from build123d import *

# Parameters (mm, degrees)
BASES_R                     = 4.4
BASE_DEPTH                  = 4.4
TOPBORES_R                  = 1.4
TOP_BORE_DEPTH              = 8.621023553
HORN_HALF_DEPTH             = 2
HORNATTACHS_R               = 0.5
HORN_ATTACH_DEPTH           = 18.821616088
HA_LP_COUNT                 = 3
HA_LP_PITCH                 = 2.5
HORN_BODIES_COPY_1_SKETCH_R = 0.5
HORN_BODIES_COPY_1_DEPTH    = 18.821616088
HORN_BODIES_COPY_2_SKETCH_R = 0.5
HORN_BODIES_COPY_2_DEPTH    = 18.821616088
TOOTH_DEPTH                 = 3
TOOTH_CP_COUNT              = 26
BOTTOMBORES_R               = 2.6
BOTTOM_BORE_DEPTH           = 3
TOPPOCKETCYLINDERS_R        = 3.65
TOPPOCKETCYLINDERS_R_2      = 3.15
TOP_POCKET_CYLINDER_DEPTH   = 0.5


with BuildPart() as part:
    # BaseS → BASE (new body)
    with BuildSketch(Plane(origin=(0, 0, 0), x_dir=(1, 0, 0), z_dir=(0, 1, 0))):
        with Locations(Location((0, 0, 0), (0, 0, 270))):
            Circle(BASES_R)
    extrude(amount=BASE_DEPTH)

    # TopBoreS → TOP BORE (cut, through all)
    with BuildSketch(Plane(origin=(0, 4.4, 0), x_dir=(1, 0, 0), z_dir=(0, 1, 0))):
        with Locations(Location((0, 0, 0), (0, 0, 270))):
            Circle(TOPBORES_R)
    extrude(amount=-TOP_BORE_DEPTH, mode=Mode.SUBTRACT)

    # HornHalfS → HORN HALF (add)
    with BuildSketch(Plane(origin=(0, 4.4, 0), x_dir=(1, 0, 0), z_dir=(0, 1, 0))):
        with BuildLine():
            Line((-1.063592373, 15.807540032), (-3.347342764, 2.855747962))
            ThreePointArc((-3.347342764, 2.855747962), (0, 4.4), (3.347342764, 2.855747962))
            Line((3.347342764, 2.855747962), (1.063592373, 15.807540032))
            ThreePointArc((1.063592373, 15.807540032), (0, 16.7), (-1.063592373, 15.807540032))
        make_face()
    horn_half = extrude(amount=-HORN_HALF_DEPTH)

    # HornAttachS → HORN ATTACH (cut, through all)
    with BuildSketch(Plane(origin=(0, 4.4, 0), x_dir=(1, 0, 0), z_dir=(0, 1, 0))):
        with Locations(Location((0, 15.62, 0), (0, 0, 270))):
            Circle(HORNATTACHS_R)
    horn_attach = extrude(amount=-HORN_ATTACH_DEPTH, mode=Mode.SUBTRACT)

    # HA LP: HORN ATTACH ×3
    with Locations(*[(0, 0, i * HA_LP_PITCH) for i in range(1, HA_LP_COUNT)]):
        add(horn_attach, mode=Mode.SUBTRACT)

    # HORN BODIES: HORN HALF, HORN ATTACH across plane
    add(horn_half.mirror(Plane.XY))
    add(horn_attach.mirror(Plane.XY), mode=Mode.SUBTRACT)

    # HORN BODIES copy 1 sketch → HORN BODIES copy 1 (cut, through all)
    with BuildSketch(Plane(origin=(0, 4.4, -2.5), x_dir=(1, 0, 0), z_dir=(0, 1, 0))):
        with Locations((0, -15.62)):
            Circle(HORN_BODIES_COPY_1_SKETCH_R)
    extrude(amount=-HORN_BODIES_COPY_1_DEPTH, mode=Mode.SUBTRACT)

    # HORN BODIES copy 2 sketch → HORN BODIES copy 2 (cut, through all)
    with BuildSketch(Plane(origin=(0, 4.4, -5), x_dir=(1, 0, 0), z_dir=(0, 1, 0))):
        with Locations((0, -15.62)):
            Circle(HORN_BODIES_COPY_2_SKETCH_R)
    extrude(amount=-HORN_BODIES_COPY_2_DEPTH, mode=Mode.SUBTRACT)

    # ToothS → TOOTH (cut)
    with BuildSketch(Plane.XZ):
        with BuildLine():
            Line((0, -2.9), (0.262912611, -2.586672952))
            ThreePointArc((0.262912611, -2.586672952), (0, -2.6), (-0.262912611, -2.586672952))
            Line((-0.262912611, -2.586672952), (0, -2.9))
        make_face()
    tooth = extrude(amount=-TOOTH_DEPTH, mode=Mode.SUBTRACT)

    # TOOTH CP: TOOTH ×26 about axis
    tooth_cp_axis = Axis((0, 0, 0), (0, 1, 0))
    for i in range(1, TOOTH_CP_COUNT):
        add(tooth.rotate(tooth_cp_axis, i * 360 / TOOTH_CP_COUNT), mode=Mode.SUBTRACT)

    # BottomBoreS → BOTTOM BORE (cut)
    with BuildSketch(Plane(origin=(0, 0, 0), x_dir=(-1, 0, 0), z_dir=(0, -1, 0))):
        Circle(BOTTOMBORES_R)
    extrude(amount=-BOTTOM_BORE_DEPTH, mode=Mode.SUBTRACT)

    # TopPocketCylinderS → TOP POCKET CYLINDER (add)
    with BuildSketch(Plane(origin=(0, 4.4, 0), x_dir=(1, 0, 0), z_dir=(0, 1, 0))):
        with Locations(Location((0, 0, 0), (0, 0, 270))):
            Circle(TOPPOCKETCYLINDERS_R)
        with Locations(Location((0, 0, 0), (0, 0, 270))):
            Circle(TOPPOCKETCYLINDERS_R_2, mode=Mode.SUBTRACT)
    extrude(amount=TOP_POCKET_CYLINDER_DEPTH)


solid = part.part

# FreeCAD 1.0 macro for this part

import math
import FreeCAD as App
import Part
import Sketcher

V = App.Vector
Q = App.Units.Quantity

doc = App.newDocument("Part")
body = doc.addObject("PartDesign::Body", "Body")

# Sketch on XZ plane
sketch1 = doc.addObject("Sketcher::SketchObject", "Sketch")
body.addObject(sketch1)
sketch1.AttachmentSupport = (doc.XZ_Plane, [""])
sketch1.MapMode = "FlatFace"
sketch1.addGeometry(Part.Circle(V(0, 0, 0), V(0, 0, 1), 4.4), False)
sketch1.addConstraint(Sketcher.Constraint("Coincident", 0, 3, -1, 1))
sketch1.addConstraint(Sketcher.Constraint("Diameter", 0, Q("8.8 mm")))
pad1 = doc.addObject("PartDesign::Pad", "Pad")
body.addObject(pad1)
pad1.Profile = sketch1
pad1.Length = 4.4
pad1.Reversed = True

# Sketch on XZ plane
sketch2 = doc.addObject("Sketcher::SketchObject", "Sketch001")
body.addObject(sketch2)
sketch2.AttachmentSupport = (doc.XZ_Plane, [""])
sketch2.MapMode = "FlatFace"
sketch2.AttachmentOffset = App.Placement(V(0, 0, -4.4), App.Rotation())
sketch2.addGeometry(Part.Circle(V(0, 0, 0), V(0, 0, 1), 1.4), False)
sketch2.addConstraint(Sketcher.Constraint("Coincident", 0, 3, -1, 1))
sketch2.addConstraint(Sketcher.Constraint("Diameter", 0, Q("2.8 mm")))
pocket1 = doc.addObject("PartDesign::Pocket", "Pocket")
body.addObject(pocket1)
pocket1.Profile = sketch2
pocket1.Type = "ThroughAll"
pocket1.Reversed = True

# Sketch on XZ plane
sketch3 = doc.addObject("Sketcher::SketchObject", "Sketch002")
body.addObject(sketch3)
sketch3.AttachmentSupport = (doc.XZ_Plane, [""])
sketch3.MapMode = "FlatFace"
sketch3.AttachmentOffset = App.Placement(V(0, 0, -4.4), App.Rotation())
sketch3.addGeometry(Part.LineSegment(V(-1.063592, -15.80754, 0), V(-3.347343, -2.855748, 0)), False)
sketch3.addGeometry(Part.ArcOfCircle(Part.Circle(V(0, 0, 0), V(0, 0, 1), 4.4), math.radians(-139.531219), math.radians(-40.468781)), False)
sketch3.addGeometry(Part.LineSegment(V(3.347343, -2.855748, 0), V(1.063592, -15.80754, 0)), False)
sketch3.addGeometry(Part.ArcOfCircle(Part.Circle(V(0, -15.62, 0), V(0, 0, 1), 1.08), math.radians(-170), math.radians(-10)), False)
sketch3.addConstraint(Sketcher.Constraint("Coincident", 0, 2, 1, 1))
sketch3.addConstraint(Sketcher.Constraint("Coincident", 1, 2, 2, 1))
sketch3.addConstraint(Sketcher.Constraint("Tangent", 2, 2, 3, 2))
sketch3.addConstraint(Sketcher.Constraint("Tangent", 3, 1, 0, 1))
sketch3.addConstraint(Sketcher.Constraint("Coincident", 1, 3, -1, 1))
sketch3.addConstraint(Sketcher.Constraint("Symmetric", 2, 2, 3, 1, -2))
sketch3.addConstraint(Sketcher.Constraint("Radius", 1, Q("4.4 mm")))
sketch3.addConstraint(Sketcher.Constraint("Angle", 0, Q("100 deg")))
sketch3.addConstraint(Sketcher.Constraint("Radius", 3, Q("1.08 mm")))
sketch3.addConstraint(Sketcher.Constraint("DistanceY", 3, 3, -1, 1, Q("15.62 mm")))
pad2 = doc.addObject("PartDesign::Pad", "Pad001")
body.addObject(pad2)
pad2.Profile = sketch3
pad2.Length = 2

# Sketch on XZ plane
sketch4 = doc.addObject("Sketcher::SketchObject", "Sketch003")
body.addObject(sketch4)
sketch4.AttachmentSupport = (doc.XZ_Plane, [""])
sketch4.MapMode = "FlatFace"
sketch4.AttachmentOffset = App.Placement(V(0, 0, -4.4), App.Rotation())
sketch4.addGeometry(Part.Circle(V(0, -15.62, 0), V(0, 0, 1), 0.5), False)
sketch4.addConstraint(Sketcher.Constraint("PointOnObject", 0, 3, -2))
sketch4.addConstraint(Sketcher.Constraint("Diameter", 0, Q("1 mm")))
sketch4.addConstraint(Sketcher.Constraint("DistanceY", 0, 3, -1, 1, Q("15.62 mm")))
pocket2 = doc.addObject("PartDesign::Pocket", "Pocket001")
body.addObject(pocket2)
pocket2.Profile = sketch4
pocket2.Type = "ThroughAll"
pocket2.Reversed = True
doc.recompute()

linearpattern = doc.addObject("PartDesign::LinearPattern", "LinearPattern")
body.addObject(linearpattern)
linearpattern.Originals = [pocket2]
linearpattern.Direction = (doc.Z_Axis, [""])
linearpattern.Mode = "offset"
linearpattern.Offset = 2.5
linearpattern.Occurrences = 3
body.Tip = linearpattern
doc.recompute()

mirrored = doc.addObject("PartDesign::Mirrored", "Mirrored")
body.addObject(mirrored)
mirrored.Originals = [pad2, pocket2]
mirrored.MirrorPlane = (doc.XY_Plane, [""])
body.Tip = mirrored

# Sketch on XZ plane
sketch5 = doc.addObject("Sketcher::SketchObject", "Sketch004")
body.addObject(sketch5)
sketch5.AttachmentSupport = (doc.XZ_Plane, [""])
sketch5.MapMode = "FlatFace"
sketch5.AttachmentOffset = App.Placement(V(0, 0, -4.4), App.Rotation())
sketch5.addGeometry(Part.Circle(V(0, 13.12, 0), V(0, 0, 1), 0.5), False)
sketch5.addConstraint(Sketcher.Constraint("PointOnObject", 0, 3, -2))
sketch5.addConstraint(Sketcher.Constraint("Diameter", 0, Q("1 mm")))
sketch5.addConstraint(Sketcher.Constraint("DistanceY", -1, 1, 0, 3, Q("13.12 mm")))
pocket3 = doc.addObject("PartDesign::Pocket", "Pocket002")
body.addObject(pocket3)
pocket3.Profile = sketch5
pocket3.Type = "ThroughAll"
pocket3.Reversed = True

# Sketch on XZ plane
sketch6 = doc.addObject("Sketcher::SketchObject", "Sketch005")
body.addObject(sketch6)
sketch6.AttachmentSupport = (doc.XZ_Plane, [""])
sketch6.MapMode = "FlatFace"
sketch6.AttachmentOffset = App.Placement(V(0, 0, -4.4), App.Rotation())
sketch6.addGeometry(Part.Circle(V(0, 10.62, 0), V(0, 0, 1), 0.5), False)
sketch6.addConstraint(Sketcher.Constraint("PointOnObject", 0, 3, -2))
sketch6.addConstraint(Sketcher.Constraint("Diameter", 0, Q("1 mm")))
sketch6.addConstraint(Sketcher.Constraint("DistanceY", -1, 1, 0, 3, Q("10.62 mm")))
pocket4 = doc.addObject("PartDesign::Pocket", "Pocket003")
body.addObject(pocket4)
pocket4.Profile = sketch6
pocket4.Type = "ThroughAll"
pocket4.Reversed = True

# Sketch on XZ plane
sketch7 = doc.addObject("Sketcher::SketchObject", "Sketch006")
body.addObject(sketch7)
sketch7.AttachmentSupport = (doc.XZ_Plane, [""])
sketch7.MapMode = "FlatFace"
sketch7.addGeometry(Part.LineSegment(V(0, -2.9, 0), V(0.262913, -2.586673, 0)), False)
sketch7.addGeometry(Part.ArcOfCircle(Part.Circle(V(0, 0, 0), V(0, 0, 1), 2.6), math.radians(-95.803682), math.radians(-84.196318)), False)
sketch7.addGeometry(Part.LineSegment(V(-0.262913, -2.586673, 0), V(0, -2.9, 0)), False)
sketch7.addConstraint(Sketcher.Constraint("Coincident", 0, 2, 1, 2))
sketch7.addConstraint(Sketcher.Constraint("Coincident", 1, 1, 2, 1))
sketch7.addConstraint(Sketcher.Constraint("Coincident", 2, 2, 0, 1))
sketch7.addConstraint(Sketcher.Constraint("Coincident", 1, 3, -1, 1))
sketch7.addConstraint(Sketcher.Constraint("PointOnObject", 2, 2, -2))
sketch7.addConstraint(Sketcher.Constraint("Horizontal", 0, 2, 1, 1))
sketch7.addConstraint(Sketcher.Constraint("Radius", 1, Q("2.6 mm")))
sketch7.addConstraint(Sketcher.Constraint("Angle", 0, Q("50 deg")))
sketch7.addConstraint(Sketcher.Constraint("DistanceY", 2, 2, -1, 1, Q("2.9 mm")))
pocket5 = doc.addObject("PartDesign::Pocket", "Pocket004")
body.addObject(pocket5)
pocket5.Profile = sketch7
pocket5.Length = 3
doc.recompute()

polarpattern = doc.addObject("PartDesign::PolarPattern", "PolarPattern")
body.addObject(polarpattern)
polarpattern.Originals = [pocket5]
polarpattern.Axis = (doc.Y_Axis, [""])
polarpattern.Angle = 360
polarpattern.Occurrences = 26
body.Tip = polarpattern

# Sketch on XZ plane
sketch8 = doc.addObject("Sketcher::SketchObject", "Sketch007")
body.addObject(sketch8)
sketch8.AttachmentSupport = (doc.XZ_Plane, [""])
sketch8.MapMode = "FlatFace"
sketch8.addGeometry(Part.Circle(V(0, 0, 0), V(0, 0, 1), 2.6), False)
sketch8.addConstraint(Sketcher.Constraint("Coincident", 0, 3, -1, 1))
sketch8.addConstraint(Sketcher.Constraint("Diameter", 0, Q("5.2 mm")))
pocket6 = doc.addObject("PartDesign::Pocket", "Pocket005")
body.addObject(pocket6)
pocket6.Profile = sketch8
pocket6.Length = 3

# Sketch on XZ plane
sketch9 = doc.addObject("Sketcher::SketchObject", "Sketch008")
body.addObject(sketch9)
sketch9.AttachmentSupport = (doc.XZ_Plane, [""])
sketch9.MapMode = "FlatFace"
sketch9.AttachmentOffset = App.Placement(V(0, 0, -4.4), App.Rotation())
sketch9.addGeometry(Part.Circle(V(0, 0, 0), V(0, 0, 1), 3.65), False)
sketch9.addGeometry(Part.Circle(V(0, 0, 0), V(0, 0, 1), 3.15), False)
sketch9.addConstraint(Sketcher.Constraint("Coincident", 0, 3, -1, 1))
sketch9.addConstraint(Sketcher.Constraint("Coincident", 1, 3, -1, 1))
sketch9.addConstraint(Sketcher.Constraint("Diameter", 0, Q("7.3 mm")))
sketch9.addConstraint(Sketcher.Constraint("Diameter", 1, Q("6.3 mm")))
pad3 = doc.addObject("PartDesign::Pad", "Pad002")
body.addObject(pad3)
pad3.Profile = sketch9
pad3.Length = 0.5
pad3.Reversed = True

doc.recompute()
